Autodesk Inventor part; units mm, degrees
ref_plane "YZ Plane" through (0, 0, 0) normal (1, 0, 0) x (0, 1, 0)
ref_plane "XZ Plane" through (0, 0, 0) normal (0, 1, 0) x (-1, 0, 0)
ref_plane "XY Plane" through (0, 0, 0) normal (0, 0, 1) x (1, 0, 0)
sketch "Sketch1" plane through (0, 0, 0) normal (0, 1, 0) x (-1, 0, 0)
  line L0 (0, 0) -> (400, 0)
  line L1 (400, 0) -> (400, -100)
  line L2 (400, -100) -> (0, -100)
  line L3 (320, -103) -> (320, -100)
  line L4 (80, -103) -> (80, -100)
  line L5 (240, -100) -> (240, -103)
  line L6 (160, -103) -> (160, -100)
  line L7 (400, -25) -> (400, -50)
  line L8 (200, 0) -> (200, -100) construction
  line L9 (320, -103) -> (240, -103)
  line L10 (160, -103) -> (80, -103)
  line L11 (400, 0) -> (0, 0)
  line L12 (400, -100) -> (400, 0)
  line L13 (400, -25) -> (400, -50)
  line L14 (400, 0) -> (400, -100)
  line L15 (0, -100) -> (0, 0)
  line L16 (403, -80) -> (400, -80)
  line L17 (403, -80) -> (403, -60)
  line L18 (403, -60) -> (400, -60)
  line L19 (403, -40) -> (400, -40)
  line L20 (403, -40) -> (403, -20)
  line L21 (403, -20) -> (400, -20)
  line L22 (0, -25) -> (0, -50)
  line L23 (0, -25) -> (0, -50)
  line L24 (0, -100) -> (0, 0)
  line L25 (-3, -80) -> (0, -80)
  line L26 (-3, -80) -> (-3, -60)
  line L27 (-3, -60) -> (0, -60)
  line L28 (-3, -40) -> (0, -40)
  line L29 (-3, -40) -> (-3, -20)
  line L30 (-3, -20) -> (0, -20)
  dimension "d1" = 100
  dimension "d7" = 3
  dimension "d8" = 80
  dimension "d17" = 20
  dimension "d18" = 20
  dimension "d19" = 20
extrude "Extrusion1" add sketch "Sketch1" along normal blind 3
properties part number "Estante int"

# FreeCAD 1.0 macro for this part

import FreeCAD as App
import Part
import Sketcher

doc = App.newDocument("Part")
body = doc.addObject("PartDesign::Body", "Body")

# Sketch on XZ plane
sketch1 = body.newObject("Sketcher::SketchObject", "Sketch")
sketch1.AttachmentSupport = (doc.getObject("XZ_Plane"), [""])
sketch1.MapMode = "FlatFace"
sketch1.addGeometry([
    Part.LineSegment(App.Vector(-400, 0, 0), App.Vector(0, 0, 0)),  # 0
    Part.LineSegment(App.Vector(0, 0, 0), App.Vector(0, -20, 0)),  # 1
    Part.LineSegment(App.Vector(0, -20, 0), App.Vector(3, -20, 0)),  # 2
    Part.LineSegment(App.Vector(3, -20, 0), App.Vector(3, -40, 0)),  # 3
    Part.LineSegment(App.Vector(3, -40, 0), App.Vector(0, -40, 0)),  # 4
    Part.LineSegment(App.Vector(0, -40, 0), App.Vector(0, -60, 0)),  # 5
    Part.LineSegment(App.Vector(0, -60, 0), App.Vector(3, -60, 0)),  # 6
    Part.LineSegment(App.Vector(3, -60, 0), App.Vector(3, -80, 0)),  # 7
    Part.LineSegment(App.Vector(3, -80, 0), App.Vector(0, -80, 0)),  # 8
    Part.LineSegment(App.Vector(0, -80, 0), App.Vector(0, -100, 0)),  # 9
    Part.LineSegment(App.Vector(0, -100, 0), App.Vector(-80, -100, 0)),  # 10
    Part.LineSegment(App.Vector(-80, -100, 0), App.Vector(-80, -103, 0)),  # 11
    Part.LineSegment(App.Vector(-80, -103, 0), App.Vector(-160, -103, 0)),  # 12
    Part.LineSegment(App.Vector(-160, -103, 0), App.Vector(-160, -100, 0)),  # 13
    Part.LineSegment(App.Vector(-160, -100, 0), App.Vector(-240, -100, 0)),  # 14
    Part.LineSegment(App.Vector(-240, -100, 0), App.Vector(-240, -103, 0)),  # 15
    Part.LineSegment(App.Vector(-240, -103, 0), App.Vector(-320, -103, 0)),  # 16
    Part.LineSegment(App.Vector(-320, -103, 0), App.Vector(-320, -100, 0)),  # 17
    Part.LineSegment(App.Vector(-320, -100, 0), App.Vector(-400, -100, 0)),  # 18
    Part.LineSegment(App.Vector(-400, -100, 0), App.Vector(-400, -80, 0)),  # 19
    Part.LineSegment(App.Vector(-400, -80, 0), App.Vector(-403, -80, 0)),  # 20
    Part.LineSegment(App.Vector(-403, -80, 0), App.Vector(-403, -60, 0)),  # 21
    Part.LineSegment(App.Vector(-403, -60, 0), App.Vector(-400, -60, 0)),  # 22
    Part.LineSegment(App.Vector(-400, -60, 0), App.Vector(-400, -40, 0)),  # 23
    Part.LineSegment(App.Vector(-400, -40, 0), App.Vector(-403, -40, 0)),  # 24
    Part.LineSegment(App.Vector(-403, -40, 0), App.Vector(-403, -20, 0)),  # 25
    Part.LineSegment(App.Vector(-403, -20, 0), App.Vector(-400, -20, 0)),  # 26
    Part.LineSegment(App.Vector(-400, -20, 0), App.Vector(-400, 0, 0)),  # 27
], False)
sketch1.addConstraint([
    Sketcher.Constraint("Coincident", 0, 2, 1, 1),
    Sketcher.Constraint("Coincident", 1, 2, 2, 1),
    Sketcher.Constraint("Coincident", 2, 2, 3, 1),
    Sketcher.Constraint("Coincident", 3, 2, 4, 1),
    Sketcher.Constraint("Coincident", 4, 2, 5, 1),
    Sketcher.Constraint("Coincident", 5, 2, 6, 1),
    Sketcher.Constraint("Coincident", 6, 2, 7, 1),
    Sketcher.Constraint("Coincident", 7, 2, 8, 1),
    Sketcher.Constraint("Coincident", 8, 2, 9, 1),
    Sketcher.Constraint("Coincident", 9, 2, 10, 1),
    Sketcher.Constraint("Coincident", 10, 2, 11, 1),
    Sketcher.Constraint("Coincident", 11, 2, 12, 1),
    Sketcher.Constraint("Coincident", 12, 2, 13, 1),
    Sketcher.Constraint("Coincident", 13, 2, 14, 1),
    Sketcher.Constraint("Coincident", 14, 2, 15, 1),
    Sketcher.Constraint("Coincident", 15, 2, 16, 1),
    Sketcher.Constraint("Coincident", 16, 2, 17, 1),
    Sketcher.Constraint("Coincident", 17, 2, 18, 1),
    Sketcher.Constraint("Coincident", 18, 2, 19, 1),
    Sketcher.Constraint("Coincident", 19, 2, 20, 1),
    Sketcher.Constraint("Coincident", 20, 2, 21, 1),
    Sketcher.Constraint("Coincident", 21, 2, 22, 1),
    Sketcher.Constraint("Coincident", 22, 2, 23, 1),
    Sketcher.Constraint("Coincident", 23, 2, 24, 1),
    Sketcher.Constraint("Coincident", 24, 2, 25, 1),
    Sketcher.Constraint("Coincident", 25, 2, 26, 1),
    Sketcher.Constraint("Coincident", 26, 2, 27, 1),
    Sketcher.Constraint("Coincident", 27, 2, 0, 1),
    Sketcher.Constraint("Horizontal", 0),
    Sketcher.Constraint("Vertical", 1),
    Sketcher.Constraint("Horizontal", 2),
    Sketcher.Constraint("Vertical", 3),
    Sketcher.Constraint("Horizontal", 4),
    Sketcher.Constraint("Vertical", 5),
    Sketcher.Constraint("Horizontal", 6),
    Sketcher.Constraint("Vertical", 7),
    Sketcher.Constraint("Horizontal", 8),
    Sketcher.Constraint("Vertical", 9),
    Sketcher.Constraint("Horizontal", 10),
    Sketcher.Constraint("Vertical", 11),
    Sketcher.Constraint("Horizontal", 12),
    Sketcher.Constraint("Vertical", 13),
    Sketcher.Constraint("Horizontal", 14),
    Sketcher.Constraint("Vertical", 15),
    Sketcher.Constraint("Horizontal", 16),
    Sketcher.Constraint("Vertical", 17),
    Sketcher.Constraint("Horizontal", 18),
    Sketcher.Constraint("Vertical", 19),
    Sketcher.Constraint("Horizontal", 20),
    Sketcher.Constraint("Vertical", 21),
    Sketcher.Constraint("Horizontal", 22),
    Sketcher.Constraint("Vertical", 23),
    Sketcher.Constraint("Horizontal", 24),
    Sketcher.Constraint("Vertical", 25),
    Sketcher.Constraint("Horizontal", 26),
    Sketcher.Constraint("Vertical", 27),
    Sketcher.Constraint("Coincident", 0, 2, -1, 1),
    Sketcher.Constraint("PointOnObject", 4, 2, -2),
    Sketcher.Constraint("PointOnObject", 8, 2, -2),
    Sketcher.Constraint("Horizontal", 10, 2, 13, 2),
    Sketcher.Constraint("Horizontal", 12, 2, 15, 2),
    Sketcher.Constraint("Horizontal", 14, 2, 17, 2),
    Sketcher.Constraint("Horizontal", 8, 2, 19, 2),
    Sketcher.Constraint("Horizontal", 6, 2, 21, 2),
    Sketcher.Constraint("Horizontal", 4, 2, 23, 2),
    Sketcher.Constraint("Horizontal", 2, 2, 25, 2),
    Sketcher.Constraint("Vertical", 3, 2, 6, 2),
    Sketcher.Constraint("Vertical", 19, 2, 22, 2),
    Sketcher.Constraint("Vertical", 21, 2, 24, 2),
    Sketcher.Constraint("Vertical", 23, 2, 26, 2),
    Sketcher.Constraint("Equal", 10, 12),
    Sketcher.Constraint("Equal", 12, 14),
    Sketcher.Constraint("Equal", 14, 16),
    Sketcher.Constraint("Equal", 16, 18),
    Sketcher.Constraint("Equal", 8, 20),
    Sketcher.Constraint("Equal", 1, 3),
    Sketcher.Constraint("Equal", 3, 5),
    Sketcher.Constraint("Equal", 5, 7),
    Sketcher.Constraint("Equal", 7, 9),
    Sketcher.Constraint("Equal", 26, 11),
    Sketcher.Constraint("DistanceX", 2, 1, 2, 2, 3.0),
    Sketcher.Constraint("DistanceX", 10, 2, 10, 1, 80.0),
    Sketcher.Constraint("DistanceY", 1, 2, 1, 1, 20.0),
])
pad1 = body.newObject("PartDesign::Pad", "Pad")
pad1.Profile = sketch1
pad1.Length = 3
pad1.Reversed = True

doc.recompute()
